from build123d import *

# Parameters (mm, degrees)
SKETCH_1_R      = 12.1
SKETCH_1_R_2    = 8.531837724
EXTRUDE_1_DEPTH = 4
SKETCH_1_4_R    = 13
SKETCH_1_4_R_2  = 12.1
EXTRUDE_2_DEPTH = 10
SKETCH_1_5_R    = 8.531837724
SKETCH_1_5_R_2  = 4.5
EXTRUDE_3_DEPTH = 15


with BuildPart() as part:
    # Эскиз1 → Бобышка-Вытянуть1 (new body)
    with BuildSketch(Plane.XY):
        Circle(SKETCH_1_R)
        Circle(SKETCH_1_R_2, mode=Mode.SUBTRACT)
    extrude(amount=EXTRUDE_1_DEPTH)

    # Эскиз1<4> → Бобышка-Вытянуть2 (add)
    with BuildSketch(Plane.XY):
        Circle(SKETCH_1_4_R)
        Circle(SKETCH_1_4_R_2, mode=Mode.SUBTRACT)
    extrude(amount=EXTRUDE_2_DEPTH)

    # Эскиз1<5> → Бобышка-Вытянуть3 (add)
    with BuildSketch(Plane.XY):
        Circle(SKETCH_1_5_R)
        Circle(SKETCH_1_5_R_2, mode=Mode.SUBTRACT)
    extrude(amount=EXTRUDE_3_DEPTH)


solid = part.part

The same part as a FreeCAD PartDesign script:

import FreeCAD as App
import Part
import Sketcher

V = App.Vector

doc = App.newDocument("Part")
body = doc.addObject("PartDesign::Body", "Body")

sketch1 = body.newObject("Sketcher::SketchObject", "Sketch")
sketch1.AttachmentSupport = (doc.getObject("XY_Plane"), [""])
sketch1.MapMode = "FlatFace"
sketch1.addGeometry([
    Part.Circle(V(0, 0, 0), V(0, 0, 1), 12),
    Part.Circle(V(0, 0, 0), V(0, 0, 1), 9),
], False)
sketch1.addConstraint([
    Sketcher.Constraint("Coincident", 0, 3, -1, 1),
    Sketcher.Constraint("Coincident", 1, 3, -1, 1),
    Sketcher.Constraint("Diameter", 0, 24.2),
    Sketcher.Constraint("Diameter", 1, 17.063675),
])
pad1 = body.newObject("PartDesign::Pad", "Pad")
pad1.Profile = sketch1
pad1.Length = 4

sketch2 = body.newObject("Sketcher::SketchObject", "Sketch001")
sketch2.AttachmentSupport = (doc.getObject("XY_Plane"), [""])
sketch2.MapMode = "FlatFace"
sketch2.addGeometry([
    Part.Circle(V(0, 0, 0), V(0, 0, 1), 13),
    Part.Circle(V(0, 0, 0), V(0, 0, 1), 12),
], False)
sketch2.addConstraint([
    Sketcher.Constraint("Coincident", 0, 3, -1, 1),
    Sketcher.Constraint("Coincident", 1, 3, -1, 1),
    Sketcher.Constraint("Diameter", 0, 26.0),
    Sketcher.Constraint("Diameter", 1, 24.2),
])
pad2 = body.newObject("PartDesign::Pad", "Pad001")
pad2.Profile = sketch2
pad2.Length = 10

sketch3 = body.newObject("Sketcher::SketchObject", "Sketch002")
sketch3.AttachmentSupport = (doc.getObject("XY_Plane"), [""])
sketch3.MapMode = "FlatFace"
sketch3.addGeometry([
    Part.Circle(V(0, 0, 0), V(0, 0, 1), 8.5),
    Part.Circle(V(0, 0, 0), V(0, 0, 1), 4.5),
], False)
sketch3.addConstraint([
    Sketcher.Constraint("Coincident", 0, 3, -1, 1),
    Sketcher.Constraint("Coincident", 1, 3, -1, 1),
    Sketcher.Constraint("Diameter", 1, 9.0),
    Sketcher.Constraint("Diameter", 0, 17.063675),
])
pad3 = body.newObject("PartDesign::Pad", "Pad002")
pad3.Profile = sketch3
pad3.Length = 15

doc.recompute()
